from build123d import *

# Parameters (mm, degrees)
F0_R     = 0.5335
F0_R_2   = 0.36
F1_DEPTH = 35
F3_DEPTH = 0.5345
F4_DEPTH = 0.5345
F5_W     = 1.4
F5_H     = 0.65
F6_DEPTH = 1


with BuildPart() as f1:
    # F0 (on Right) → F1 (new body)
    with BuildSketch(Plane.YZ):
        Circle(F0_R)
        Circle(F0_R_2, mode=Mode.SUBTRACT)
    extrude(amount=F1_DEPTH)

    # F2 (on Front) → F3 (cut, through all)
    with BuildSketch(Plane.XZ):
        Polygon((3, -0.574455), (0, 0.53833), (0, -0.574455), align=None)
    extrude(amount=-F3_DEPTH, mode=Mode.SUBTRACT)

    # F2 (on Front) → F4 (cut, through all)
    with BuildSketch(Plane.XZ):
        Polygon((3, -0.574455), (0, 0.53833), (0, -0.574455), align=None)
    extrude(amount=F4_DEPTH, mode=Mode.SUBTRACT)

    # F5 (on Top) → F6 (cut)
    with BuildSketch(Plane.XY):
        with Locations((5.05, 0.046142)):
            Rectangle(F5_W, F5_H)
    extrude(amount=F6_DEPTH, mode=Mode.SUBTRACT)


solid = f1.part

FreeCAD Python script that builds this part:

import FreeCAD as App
import Part
import Sketcher
Q = App.Units.Quantity


def add_polygon(sketch, points):
    """Adds a closed chain of lines whose ends are joined by coincident constraints."""
    first, n = sketch.GeometryCount, len(points)
    for a, b in zip(points, points[1:] + points[:1]):
        sketch.addGeometry(Part.LineSegment(App.Vector(*a, 0), App.Vector(*b, 0)), False)
    for i in range(n):
        sketch.addConstraint(Sketcher.Constraint("Coincident", first + i, 2, first + (i + 1) % n, 1))

doc = App.newDocument("Part")
body = doc.addObject("PartDesign::Body", "Body")

# Sketch on YZ plane
sketch1 = body.newObject("Sketcher::SketchObject", "Sketch")
sketch1.AttachmentSupport = (doc.getObject("YZ_Plane"), [""])
sketch1.MapMode = "FlatFace"
sketch1.addGeometry(Part.Circle(App.Vector(0, 0, 0), App.Vector(0, 0, 1), 0.53), False)
sketch1.addGeometry(Part.Circle(App.Vector(0, 0, 0), App.Vector(0, 0, 1), 0.36), False)
sketch1.addConstraint(Sketcher.Constraint("Coincident", 0, 3, -1, 1))
sketch1.addConstraint(Sketcher.Constraint("Coincident", 1, 3, -1, 1))
sketch1.addConstraint(Sketcher.Constraint("Diameter", 1, Q("0.72 mm")))
sketch1.addConstraint(Sketcher.Constraint("Diameter", 0, Q("1.067 mm")))
pad1 = body.newObject("PartDesign::Pad", "Pad")
pad1.Profile = sketch1
pad1.Length = 35

# Sketch on XZ plane
sketch2 = body.newObject("Sketcher::SketchObject", "Sketch001")
sketch2.AttachmentSupport = (doc.getObject("XZ_Plane"), [""])
sketch2.MapMode = "FlatFace"
add_polygon(sketch2, [(3, -0.6), (0, 0.5), (0, -0.6)])  # lines 0-2
sketch2.addConstraint(Sketcher.Constraint("Vertical", 1))
sketch2.addConstraint(Sketcher.Constraint("Horizontal", 2))
sketch2.addConstraint(Sketcher.Constraint("PointOnObject", 0, 2, -2))
sketch2.addConstraint(Sketcher.Constraint("DistanceX", 2, 1, 2, 2, Q("3 mm")))
sketch2.addConstraint(Sketcher.Constraint("DistanceY", 1, 2, 1, 1, Q("1.112785 mm")))
sketch2.addConstraint(Sketcher.Constraint("DistanceY", -1, 1, 0, 2, Q("0.53833 mm")))
pocket1 = body.newObject("PartDesign::Pocket", "Pocket")
pocket1.Profile = sketch2
pocket1.Type = "ThroughAll"

# Sketch on XZ plane
sketch3 = body.newObject("Sketcher::SketchObject", "Sketch002")
sketch3.AttachmentSupport = (doc.getObject("XZ_Plane"), [""])
sketch3.MapMode = "FlatFace"
add_polygon(sketch3, [(3, -0.6), (0, 0.5), (0, -0.6)])  # lines 0-2
sketch3.addConstraint(Sketcher.Constraint("Vertical", 1))
sketch3.addConstraint(Sketcher.Constraint("Horizontal", 2))
sketch3.addConstraint(Sketcher.Constraint("PointOnObject", 0, 2, -2))
sketch3.addConstraint(Sketcher.Constraint("DistanceX", 2, 1, 2, 2, Q("3 mm")))
sketch3.addConstraint(Sketcher.Constraint("DistanceY", 1, 2, 1, 1, Q("1.112785 mm")))
sketch3.addConstraint(Sketcher.Constraint("DistanceY", -1, 1, 0, 2, Q("0.53833 mm")))
pocket2 = body.newObject("PartDesign::Pocket", "Pocket001")
pocket2.Profile = sketch3
pocket2.Type = "ThroughAll"
pocket2.Reversed = True

# Sketch on XY plane
sketch4 = body.newObject("Sketcher::SketchObject", "Sketch003")
sketch4.AttachmentSupport = (doc.getObject("XY_Plane"), [""])
sketch4.MapMode = "FlatFace"
add_polygon(sketch4, [(4.3, 0.4), (4.3, -0.3), (5.8, -0.3), (5.8, 0.4)])  # lines 0-3
sketch4.addConstraint(Sketcher.Constraint("Vertical", 0))
sketch4.addConstraint(Sketcher.Constraint("Horizontal", 1))
sketch4.addConstraint(Sketcher.Constraint("Vertical", 2))
sketch4.addConstraint(Sketcher.Constraint("Horizontal", 3))
sketch4.addConstraint(Sketcher.Constraint("DistanceX", 1, 1, 1, 2, Q("1.4 mm")))
sketch4.addConstraint(Sketcher.Constraint("DistanceY", 0, 2, 0, 1, Q("0.65 mm")))
sketch4.addConstraint(Sketcher.Constraint("DistanceX", -1, 1, 0, 2, Q("4.35 mm")))
sketch4.addConstraint(Sketcher.Constraint("DistanceY", 0, 2, -1, 1, Q("0.278858 mm")))
pocket3 = body.newObject("PartDesign::Pocket", "Pocket002")
pocket3.Profile = sketch4
pocket3.Length = 1
pocket3.Reversed = True

doc.recompute()
